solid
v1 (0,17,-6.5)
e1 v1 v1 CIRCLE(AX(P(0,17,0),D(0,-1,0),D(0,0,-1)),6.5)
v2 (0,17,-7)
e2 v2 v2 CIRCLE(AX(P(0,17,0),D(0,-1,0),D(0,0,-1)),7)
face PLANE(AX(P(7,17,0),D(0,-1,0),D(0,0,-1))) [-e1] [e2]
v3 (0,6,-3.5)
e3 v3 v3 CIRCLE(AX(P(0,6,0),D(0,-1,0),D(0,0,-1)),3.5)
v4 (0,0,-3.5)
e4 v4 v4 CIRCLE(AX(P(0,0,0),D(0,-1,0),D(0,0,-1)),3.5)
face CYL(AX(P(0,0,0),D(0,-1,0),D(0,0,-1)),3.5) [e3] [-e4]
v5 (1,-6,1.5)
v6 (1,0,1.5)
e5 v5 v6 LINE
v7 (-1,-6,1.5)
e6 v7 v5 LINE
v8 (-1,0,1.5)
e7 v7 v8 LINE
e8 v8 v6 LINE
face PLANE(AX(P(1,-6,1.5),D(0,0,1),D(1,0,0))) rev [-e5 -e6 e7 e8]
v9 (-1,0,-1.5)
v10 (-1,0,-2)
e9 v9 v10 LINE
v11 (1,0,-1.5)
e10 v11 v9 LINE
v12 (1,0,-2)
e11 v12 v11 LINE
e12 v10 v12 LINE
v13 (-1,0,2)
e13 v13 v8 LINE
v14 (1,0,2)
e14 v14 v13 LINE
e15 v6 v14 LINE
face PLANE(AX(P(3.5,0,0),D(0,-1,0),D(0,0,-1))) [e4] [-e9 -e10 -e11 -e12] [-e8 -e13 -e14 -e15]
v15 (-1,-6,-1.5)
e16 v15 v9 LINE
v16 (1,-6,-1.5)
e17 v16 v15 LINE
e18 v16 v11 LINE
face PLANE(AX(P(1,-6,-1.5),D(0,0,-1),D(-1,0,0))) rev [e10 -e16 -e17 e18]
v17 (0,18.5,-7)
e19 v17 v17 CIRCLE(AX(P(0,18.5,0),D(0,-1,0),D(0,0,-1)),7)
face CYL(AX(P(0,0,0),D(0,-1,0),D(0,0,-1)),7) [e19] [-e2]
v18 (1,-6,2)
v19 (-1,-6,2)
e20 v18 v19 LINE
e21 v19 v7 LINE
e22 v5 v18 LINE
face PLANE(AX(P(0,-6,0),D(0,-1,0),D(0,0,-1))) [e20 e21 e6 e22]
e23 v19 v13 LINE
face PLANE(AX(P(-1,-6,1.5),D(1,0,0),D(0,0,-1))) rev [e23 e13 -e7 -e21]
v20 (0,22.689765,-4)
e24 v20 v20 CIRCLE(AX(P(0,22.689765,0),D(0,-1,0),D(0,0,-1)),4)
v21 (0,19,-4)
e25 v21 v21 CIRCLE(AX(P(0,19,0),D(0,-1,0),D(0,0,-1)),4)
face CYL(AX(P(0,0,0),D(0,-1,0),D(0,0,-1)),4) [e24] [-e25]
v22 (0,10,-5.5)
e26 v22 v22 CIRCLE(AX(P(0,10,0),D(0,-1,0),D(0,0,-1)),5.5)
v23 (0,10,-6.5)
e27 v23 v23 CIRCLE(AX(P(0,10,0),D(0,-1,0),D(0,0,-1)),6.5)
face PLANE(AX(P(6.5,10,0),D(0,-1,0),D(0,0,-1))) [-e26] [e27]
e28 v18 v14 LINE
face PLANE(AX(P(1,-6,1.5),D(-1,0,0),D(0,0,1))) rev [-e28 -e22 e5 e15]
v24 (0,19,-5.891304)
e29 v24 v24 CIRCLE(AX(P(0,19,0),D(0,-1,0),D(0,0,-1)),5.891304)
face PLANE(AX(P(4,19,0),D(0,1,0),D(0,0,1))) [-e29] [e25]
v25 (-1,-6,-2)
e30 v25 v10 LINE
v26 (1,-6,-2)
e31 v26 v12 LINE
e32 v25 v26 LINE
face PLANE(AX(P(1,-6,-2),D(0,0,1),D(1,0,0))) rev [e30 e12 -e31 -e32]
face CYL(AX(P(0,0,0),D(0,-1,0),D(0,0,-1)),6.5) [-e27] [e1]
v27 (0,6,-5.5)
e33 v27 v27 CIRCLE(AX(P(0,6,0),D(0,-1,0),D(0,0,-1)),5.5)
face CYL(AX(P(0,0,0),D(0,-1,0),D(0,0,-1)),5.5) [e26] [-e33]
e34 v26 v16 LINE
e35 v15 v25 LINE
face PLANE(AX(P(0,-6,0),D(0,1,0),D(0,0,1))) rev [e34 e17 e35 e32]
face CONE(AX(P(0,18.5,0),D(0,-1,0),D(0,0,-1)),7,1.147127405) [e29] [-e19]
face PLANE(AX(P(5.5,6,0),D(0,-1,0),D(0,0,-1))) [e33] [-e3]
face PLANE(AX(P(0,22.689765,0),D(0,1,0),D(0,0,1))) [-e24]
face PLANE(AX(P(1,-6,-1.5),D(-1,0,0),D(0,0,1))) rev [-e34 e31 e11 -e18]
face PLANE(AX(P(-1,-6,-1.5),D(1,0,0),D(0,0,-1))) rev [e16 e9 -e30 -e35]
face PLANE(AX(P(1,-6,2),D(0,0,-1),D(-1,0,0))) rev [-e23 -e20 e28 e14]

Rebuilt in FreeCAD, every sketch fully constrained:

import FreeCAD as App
import Part
import Sketcher
Q = App.Units.Quantity

doc = App.newDocument("Part")
body = doc.addObject("PartDesign::Body", "Body")

sketch1 = doc.addObject("Sketcher::SketchObject", "Sketch")
body.addObject(sketch1)
sketch1.AttachmentSupport = (doc.XY_Plane, [""])
sketch1.MapMode = "FlatFace"
sketch1.addGeometry([
    Part.LineSegment(App.Vector(4, 22.7, 0), App.Vector(0, 22.7, 0)),
    Part.LineSegment(App.Vector(0, 22.7, 0), App.Vector(0, 0, 0)),
    Part.LineSegment(App.Vector(0, 0, 0), App.Vector(3.5, 0, 0)),
    Part.LineSegment(App.Vector(3.5, 0, 0), App.Vector(3.5, 6, 0)),
    Part.LineSegment(App.Vector(3.5, 6, 0), App.Vector(5.5, 6, 0)),
    Part.LineSegment(App.Vector(5.5, 6, 0), App.Vector(5.5, 10, 0)),
    Part.LineSegment(App.Vector(5.5, 10, 0), App.Vector(6.5, 10, 0)),
    Part.LineSegment(App.Vector(6.5, 10, 0), App.Vector(6.5, 17, 0)),
    Part.LineSegment(App.Vector(6.5, 17, 0), App.Vector(7, 17, 0)),
    Part.LineSegment(App.Vector(7, 17, 0), App.Vector(7, 18.5, 0)),
    Part.LineSegment(App.Vector(7, 18.5, 0), App.Vector(5.9, 19, 0)),
    Part.LineSegment(App.Vector(5.9, 19, 0), App.Vector(4, 19, 0)),
    Part.LineSegment(App.Vector(4, 19, 0), App.Vector(4, 22.7, 0)),
], False)
sketch1.addConstraint([
    Sketcher.Constraint("Coincident", 0, 2, 1, 1),
    Sketcher.Constraint("Coincident", 1, 2, 2, 1),
    Sketcher.Constraint("Coincident", 2, 2, 3, 1),
    Sketcher.Constraint("Coincident", 3, 2, 4, 1),
    Sketcher.Constraint("Coincident", 4, 2, 5, 1),
    Sketcher.Constraint("Coincident", 5, 2, 6, 1),
    Sketcher.Constraint("Coincident", 6, 2, 7, 1),
    Sketcher.Constraint("Coincident", 7, 2, 8, 1),
    Sketcher.Constraint("Coincident", 8, 2, 9, 1),
    Sketcher.Constraint("Coincident", 9, 2, 10, 1),
    Sketcher.Constraint("Coincident", 10, 2, 11, 1),
    Sketcher.Constraint("Coincident", 11, 2, 12, 1),
    Sketcher.Constraint("Coincident", 12, 2, 0, 1),
    Sketcher.Constraint("Horizontal", 0),
    Sketcher.Constraint("Vertical", 1),
    Sketcher.Constraint("Horizontal", 2),
    Sketcher.Constraint("Vertical", 3),
    Sketcher.Constraint("Horizontal", 4),
    Sketcher.Constraint("Vertical", 5),
    Sketcher.Constraint("Horizontal", 6),
    Sketcher.Constraint("Vertical", 7),
    Sketcher.Constraint("Horizontal", 8),
    Sketcher.Constraint("Vertical", 9),
    Sketcher.Constraint("Horizontal", 11),
    Sketcher.Constraint("Vertical", 12),
    Sketcher.Constraint("Coincident", 1, 2, -1, 1),
    Sketcher.Constraint("Equal", 0, 5),
    Sketcher.Constraint("DistanceX", 0, 2, 0, 1, Q("4 mm")),
    Sketcher.Constraint("DistanceX", 4, 1, 4, 2, Q("2 mm")),
    Sketcher.Constraint("DistanceX", 6, 1, 6, 2, Q("1 mm")),
    Sketcher.Constraint("DistanceY", 3, 1, 3, 2, Q("6 mm")),
    Sketcher.Constraint("DistanceY", 7, 1, 7, 2, Q("7 mm")),
    Sketcher.Constraint("DistanceX", 2, 1, 2, 2, Q("3.5 mm")),
    Sketcher.Constraint("DistanceX", 8, 1, 8, 2, Q("0.5 mm")),
    Sketcher.Constraint("DistanceY", 9, 1, 9, 2, Q("1.5 mm")),
    Sketcher.Constraint("DistanceY", -1, 1, 10, 2, Q("19 mm")),
    Sketcher.Constraint("DistanceX", 11, 2, 11, 1, Q("1.891304 mm")),
    Sketcher.Constraint("DistanceY", 1, 2, 1, 1, Q("22.689765 mm")),
])
revolution = doc.addObject("PartDesign::Revolution", "Revolution")
body.addObject(revolution)
revolution.Profile = sketch1
revolution.ReferenceAxis = (sketch1, ["V_Axis"])
revolution.Angle = 360

sketch2 = doc.addObject("Sketcher::SketchObject", "Sketch001")
body.addObject(sketch2)
sketch2.AttachmentSupport = (doc.XZ_Plane, [""])
sketch2.MapMode = "FlatFace"
sketch2.addGeometry([
    Part.LineSegment(App.Vector(-1, -1.5, 0), App.Vector(-1, -2, 0)),
    Part.LineSegment(App.Vector(-1, -2, 0), App.Vector(1, -2, 0)),
    Part.LineSegment(App.Vector(1, -2, 0), App.Vector(1, -1.5, 0)),
    Part.LineSegment(App.Vector(1, -1.5, 0), App.Vector(-1, -1.5, 0)),
    Part.LineSegment(App.Vector(-1, 2, 0), App.Vector(-1, 1.5, 0)),
    Part.LineSegment(App.Vector(-1, 1.5, 0), App.Vector(1, 1.5, 0)),
    Part.LineSegment(App.Vector(1, 1.5, 0), App.Vector(1, 2, 0)),
    Part.LineSegment(App.Vector(1, 2, 0), App.Vector(-1, 2, 0)),
], False)
sketch2.addConstraint([
    Sketcher.Constraint("Coincident", 0, 2, 1, 1),
    Sketcher.Constraint("Coincident", 1, 2, 2, 1),
    Sketcher.Constraint("Coincident", 2, 2, 3, 1),
    Sketcher.Constraint("Coincident", 3, 2, 0, 1),
    Sketcher.Constraint("Coincident", 4, 2, 5, 1),
    Sketcher.Constraint("Coincident", 5, 2, 6, 1),
    Sketcher.Constraint("Coincident", 6, 2, 7, 1),
    Sketcher.Constraint("Coincident", 7, 2, 4, 1),
    Sketcher.Constraint("Vertical", 0),
    Sketcher.Constraint("Horizontal", 1),
    Sketcher.Constraint("Vertical", 2),
    Sketcher.Constraint("Horizontal", 3),
    Sketcher.Constraint("Vertical", 4),
    Sketcher.Constraint("Horizontal", 5),
    Sketcher.Constraint("Vertical", 6),
    Sketcher.Constraint("Horizontal", 7),
    Sketcher.Constraint("Symmetric", 2, 2, 4, 2, -1, 1),
    Sketcher.Constraint("Symmetric", 0, 2, 6, 2, -1, 1),
    Sketcher.Constraint("Vertical", 3, 2, 4, 2),
    Sketcher.Constraint("DistanceX", 1, 1, 1, 2, Q("2 mm")),
    Sketcher.Constraint("DistanceY", 0, 2, 0, 1, Q("0.5 mm")),
    Sketcher.Constraint("DistanceY", 0, 2, -1, 1, Q("2 mm")),
])
pad1 = doc.addObject("PartDesign::Pad", "Pad")
body.addObject(pad1)
pad1.Profile = sketch2
pad1.Length = 6

doc.recompute()
